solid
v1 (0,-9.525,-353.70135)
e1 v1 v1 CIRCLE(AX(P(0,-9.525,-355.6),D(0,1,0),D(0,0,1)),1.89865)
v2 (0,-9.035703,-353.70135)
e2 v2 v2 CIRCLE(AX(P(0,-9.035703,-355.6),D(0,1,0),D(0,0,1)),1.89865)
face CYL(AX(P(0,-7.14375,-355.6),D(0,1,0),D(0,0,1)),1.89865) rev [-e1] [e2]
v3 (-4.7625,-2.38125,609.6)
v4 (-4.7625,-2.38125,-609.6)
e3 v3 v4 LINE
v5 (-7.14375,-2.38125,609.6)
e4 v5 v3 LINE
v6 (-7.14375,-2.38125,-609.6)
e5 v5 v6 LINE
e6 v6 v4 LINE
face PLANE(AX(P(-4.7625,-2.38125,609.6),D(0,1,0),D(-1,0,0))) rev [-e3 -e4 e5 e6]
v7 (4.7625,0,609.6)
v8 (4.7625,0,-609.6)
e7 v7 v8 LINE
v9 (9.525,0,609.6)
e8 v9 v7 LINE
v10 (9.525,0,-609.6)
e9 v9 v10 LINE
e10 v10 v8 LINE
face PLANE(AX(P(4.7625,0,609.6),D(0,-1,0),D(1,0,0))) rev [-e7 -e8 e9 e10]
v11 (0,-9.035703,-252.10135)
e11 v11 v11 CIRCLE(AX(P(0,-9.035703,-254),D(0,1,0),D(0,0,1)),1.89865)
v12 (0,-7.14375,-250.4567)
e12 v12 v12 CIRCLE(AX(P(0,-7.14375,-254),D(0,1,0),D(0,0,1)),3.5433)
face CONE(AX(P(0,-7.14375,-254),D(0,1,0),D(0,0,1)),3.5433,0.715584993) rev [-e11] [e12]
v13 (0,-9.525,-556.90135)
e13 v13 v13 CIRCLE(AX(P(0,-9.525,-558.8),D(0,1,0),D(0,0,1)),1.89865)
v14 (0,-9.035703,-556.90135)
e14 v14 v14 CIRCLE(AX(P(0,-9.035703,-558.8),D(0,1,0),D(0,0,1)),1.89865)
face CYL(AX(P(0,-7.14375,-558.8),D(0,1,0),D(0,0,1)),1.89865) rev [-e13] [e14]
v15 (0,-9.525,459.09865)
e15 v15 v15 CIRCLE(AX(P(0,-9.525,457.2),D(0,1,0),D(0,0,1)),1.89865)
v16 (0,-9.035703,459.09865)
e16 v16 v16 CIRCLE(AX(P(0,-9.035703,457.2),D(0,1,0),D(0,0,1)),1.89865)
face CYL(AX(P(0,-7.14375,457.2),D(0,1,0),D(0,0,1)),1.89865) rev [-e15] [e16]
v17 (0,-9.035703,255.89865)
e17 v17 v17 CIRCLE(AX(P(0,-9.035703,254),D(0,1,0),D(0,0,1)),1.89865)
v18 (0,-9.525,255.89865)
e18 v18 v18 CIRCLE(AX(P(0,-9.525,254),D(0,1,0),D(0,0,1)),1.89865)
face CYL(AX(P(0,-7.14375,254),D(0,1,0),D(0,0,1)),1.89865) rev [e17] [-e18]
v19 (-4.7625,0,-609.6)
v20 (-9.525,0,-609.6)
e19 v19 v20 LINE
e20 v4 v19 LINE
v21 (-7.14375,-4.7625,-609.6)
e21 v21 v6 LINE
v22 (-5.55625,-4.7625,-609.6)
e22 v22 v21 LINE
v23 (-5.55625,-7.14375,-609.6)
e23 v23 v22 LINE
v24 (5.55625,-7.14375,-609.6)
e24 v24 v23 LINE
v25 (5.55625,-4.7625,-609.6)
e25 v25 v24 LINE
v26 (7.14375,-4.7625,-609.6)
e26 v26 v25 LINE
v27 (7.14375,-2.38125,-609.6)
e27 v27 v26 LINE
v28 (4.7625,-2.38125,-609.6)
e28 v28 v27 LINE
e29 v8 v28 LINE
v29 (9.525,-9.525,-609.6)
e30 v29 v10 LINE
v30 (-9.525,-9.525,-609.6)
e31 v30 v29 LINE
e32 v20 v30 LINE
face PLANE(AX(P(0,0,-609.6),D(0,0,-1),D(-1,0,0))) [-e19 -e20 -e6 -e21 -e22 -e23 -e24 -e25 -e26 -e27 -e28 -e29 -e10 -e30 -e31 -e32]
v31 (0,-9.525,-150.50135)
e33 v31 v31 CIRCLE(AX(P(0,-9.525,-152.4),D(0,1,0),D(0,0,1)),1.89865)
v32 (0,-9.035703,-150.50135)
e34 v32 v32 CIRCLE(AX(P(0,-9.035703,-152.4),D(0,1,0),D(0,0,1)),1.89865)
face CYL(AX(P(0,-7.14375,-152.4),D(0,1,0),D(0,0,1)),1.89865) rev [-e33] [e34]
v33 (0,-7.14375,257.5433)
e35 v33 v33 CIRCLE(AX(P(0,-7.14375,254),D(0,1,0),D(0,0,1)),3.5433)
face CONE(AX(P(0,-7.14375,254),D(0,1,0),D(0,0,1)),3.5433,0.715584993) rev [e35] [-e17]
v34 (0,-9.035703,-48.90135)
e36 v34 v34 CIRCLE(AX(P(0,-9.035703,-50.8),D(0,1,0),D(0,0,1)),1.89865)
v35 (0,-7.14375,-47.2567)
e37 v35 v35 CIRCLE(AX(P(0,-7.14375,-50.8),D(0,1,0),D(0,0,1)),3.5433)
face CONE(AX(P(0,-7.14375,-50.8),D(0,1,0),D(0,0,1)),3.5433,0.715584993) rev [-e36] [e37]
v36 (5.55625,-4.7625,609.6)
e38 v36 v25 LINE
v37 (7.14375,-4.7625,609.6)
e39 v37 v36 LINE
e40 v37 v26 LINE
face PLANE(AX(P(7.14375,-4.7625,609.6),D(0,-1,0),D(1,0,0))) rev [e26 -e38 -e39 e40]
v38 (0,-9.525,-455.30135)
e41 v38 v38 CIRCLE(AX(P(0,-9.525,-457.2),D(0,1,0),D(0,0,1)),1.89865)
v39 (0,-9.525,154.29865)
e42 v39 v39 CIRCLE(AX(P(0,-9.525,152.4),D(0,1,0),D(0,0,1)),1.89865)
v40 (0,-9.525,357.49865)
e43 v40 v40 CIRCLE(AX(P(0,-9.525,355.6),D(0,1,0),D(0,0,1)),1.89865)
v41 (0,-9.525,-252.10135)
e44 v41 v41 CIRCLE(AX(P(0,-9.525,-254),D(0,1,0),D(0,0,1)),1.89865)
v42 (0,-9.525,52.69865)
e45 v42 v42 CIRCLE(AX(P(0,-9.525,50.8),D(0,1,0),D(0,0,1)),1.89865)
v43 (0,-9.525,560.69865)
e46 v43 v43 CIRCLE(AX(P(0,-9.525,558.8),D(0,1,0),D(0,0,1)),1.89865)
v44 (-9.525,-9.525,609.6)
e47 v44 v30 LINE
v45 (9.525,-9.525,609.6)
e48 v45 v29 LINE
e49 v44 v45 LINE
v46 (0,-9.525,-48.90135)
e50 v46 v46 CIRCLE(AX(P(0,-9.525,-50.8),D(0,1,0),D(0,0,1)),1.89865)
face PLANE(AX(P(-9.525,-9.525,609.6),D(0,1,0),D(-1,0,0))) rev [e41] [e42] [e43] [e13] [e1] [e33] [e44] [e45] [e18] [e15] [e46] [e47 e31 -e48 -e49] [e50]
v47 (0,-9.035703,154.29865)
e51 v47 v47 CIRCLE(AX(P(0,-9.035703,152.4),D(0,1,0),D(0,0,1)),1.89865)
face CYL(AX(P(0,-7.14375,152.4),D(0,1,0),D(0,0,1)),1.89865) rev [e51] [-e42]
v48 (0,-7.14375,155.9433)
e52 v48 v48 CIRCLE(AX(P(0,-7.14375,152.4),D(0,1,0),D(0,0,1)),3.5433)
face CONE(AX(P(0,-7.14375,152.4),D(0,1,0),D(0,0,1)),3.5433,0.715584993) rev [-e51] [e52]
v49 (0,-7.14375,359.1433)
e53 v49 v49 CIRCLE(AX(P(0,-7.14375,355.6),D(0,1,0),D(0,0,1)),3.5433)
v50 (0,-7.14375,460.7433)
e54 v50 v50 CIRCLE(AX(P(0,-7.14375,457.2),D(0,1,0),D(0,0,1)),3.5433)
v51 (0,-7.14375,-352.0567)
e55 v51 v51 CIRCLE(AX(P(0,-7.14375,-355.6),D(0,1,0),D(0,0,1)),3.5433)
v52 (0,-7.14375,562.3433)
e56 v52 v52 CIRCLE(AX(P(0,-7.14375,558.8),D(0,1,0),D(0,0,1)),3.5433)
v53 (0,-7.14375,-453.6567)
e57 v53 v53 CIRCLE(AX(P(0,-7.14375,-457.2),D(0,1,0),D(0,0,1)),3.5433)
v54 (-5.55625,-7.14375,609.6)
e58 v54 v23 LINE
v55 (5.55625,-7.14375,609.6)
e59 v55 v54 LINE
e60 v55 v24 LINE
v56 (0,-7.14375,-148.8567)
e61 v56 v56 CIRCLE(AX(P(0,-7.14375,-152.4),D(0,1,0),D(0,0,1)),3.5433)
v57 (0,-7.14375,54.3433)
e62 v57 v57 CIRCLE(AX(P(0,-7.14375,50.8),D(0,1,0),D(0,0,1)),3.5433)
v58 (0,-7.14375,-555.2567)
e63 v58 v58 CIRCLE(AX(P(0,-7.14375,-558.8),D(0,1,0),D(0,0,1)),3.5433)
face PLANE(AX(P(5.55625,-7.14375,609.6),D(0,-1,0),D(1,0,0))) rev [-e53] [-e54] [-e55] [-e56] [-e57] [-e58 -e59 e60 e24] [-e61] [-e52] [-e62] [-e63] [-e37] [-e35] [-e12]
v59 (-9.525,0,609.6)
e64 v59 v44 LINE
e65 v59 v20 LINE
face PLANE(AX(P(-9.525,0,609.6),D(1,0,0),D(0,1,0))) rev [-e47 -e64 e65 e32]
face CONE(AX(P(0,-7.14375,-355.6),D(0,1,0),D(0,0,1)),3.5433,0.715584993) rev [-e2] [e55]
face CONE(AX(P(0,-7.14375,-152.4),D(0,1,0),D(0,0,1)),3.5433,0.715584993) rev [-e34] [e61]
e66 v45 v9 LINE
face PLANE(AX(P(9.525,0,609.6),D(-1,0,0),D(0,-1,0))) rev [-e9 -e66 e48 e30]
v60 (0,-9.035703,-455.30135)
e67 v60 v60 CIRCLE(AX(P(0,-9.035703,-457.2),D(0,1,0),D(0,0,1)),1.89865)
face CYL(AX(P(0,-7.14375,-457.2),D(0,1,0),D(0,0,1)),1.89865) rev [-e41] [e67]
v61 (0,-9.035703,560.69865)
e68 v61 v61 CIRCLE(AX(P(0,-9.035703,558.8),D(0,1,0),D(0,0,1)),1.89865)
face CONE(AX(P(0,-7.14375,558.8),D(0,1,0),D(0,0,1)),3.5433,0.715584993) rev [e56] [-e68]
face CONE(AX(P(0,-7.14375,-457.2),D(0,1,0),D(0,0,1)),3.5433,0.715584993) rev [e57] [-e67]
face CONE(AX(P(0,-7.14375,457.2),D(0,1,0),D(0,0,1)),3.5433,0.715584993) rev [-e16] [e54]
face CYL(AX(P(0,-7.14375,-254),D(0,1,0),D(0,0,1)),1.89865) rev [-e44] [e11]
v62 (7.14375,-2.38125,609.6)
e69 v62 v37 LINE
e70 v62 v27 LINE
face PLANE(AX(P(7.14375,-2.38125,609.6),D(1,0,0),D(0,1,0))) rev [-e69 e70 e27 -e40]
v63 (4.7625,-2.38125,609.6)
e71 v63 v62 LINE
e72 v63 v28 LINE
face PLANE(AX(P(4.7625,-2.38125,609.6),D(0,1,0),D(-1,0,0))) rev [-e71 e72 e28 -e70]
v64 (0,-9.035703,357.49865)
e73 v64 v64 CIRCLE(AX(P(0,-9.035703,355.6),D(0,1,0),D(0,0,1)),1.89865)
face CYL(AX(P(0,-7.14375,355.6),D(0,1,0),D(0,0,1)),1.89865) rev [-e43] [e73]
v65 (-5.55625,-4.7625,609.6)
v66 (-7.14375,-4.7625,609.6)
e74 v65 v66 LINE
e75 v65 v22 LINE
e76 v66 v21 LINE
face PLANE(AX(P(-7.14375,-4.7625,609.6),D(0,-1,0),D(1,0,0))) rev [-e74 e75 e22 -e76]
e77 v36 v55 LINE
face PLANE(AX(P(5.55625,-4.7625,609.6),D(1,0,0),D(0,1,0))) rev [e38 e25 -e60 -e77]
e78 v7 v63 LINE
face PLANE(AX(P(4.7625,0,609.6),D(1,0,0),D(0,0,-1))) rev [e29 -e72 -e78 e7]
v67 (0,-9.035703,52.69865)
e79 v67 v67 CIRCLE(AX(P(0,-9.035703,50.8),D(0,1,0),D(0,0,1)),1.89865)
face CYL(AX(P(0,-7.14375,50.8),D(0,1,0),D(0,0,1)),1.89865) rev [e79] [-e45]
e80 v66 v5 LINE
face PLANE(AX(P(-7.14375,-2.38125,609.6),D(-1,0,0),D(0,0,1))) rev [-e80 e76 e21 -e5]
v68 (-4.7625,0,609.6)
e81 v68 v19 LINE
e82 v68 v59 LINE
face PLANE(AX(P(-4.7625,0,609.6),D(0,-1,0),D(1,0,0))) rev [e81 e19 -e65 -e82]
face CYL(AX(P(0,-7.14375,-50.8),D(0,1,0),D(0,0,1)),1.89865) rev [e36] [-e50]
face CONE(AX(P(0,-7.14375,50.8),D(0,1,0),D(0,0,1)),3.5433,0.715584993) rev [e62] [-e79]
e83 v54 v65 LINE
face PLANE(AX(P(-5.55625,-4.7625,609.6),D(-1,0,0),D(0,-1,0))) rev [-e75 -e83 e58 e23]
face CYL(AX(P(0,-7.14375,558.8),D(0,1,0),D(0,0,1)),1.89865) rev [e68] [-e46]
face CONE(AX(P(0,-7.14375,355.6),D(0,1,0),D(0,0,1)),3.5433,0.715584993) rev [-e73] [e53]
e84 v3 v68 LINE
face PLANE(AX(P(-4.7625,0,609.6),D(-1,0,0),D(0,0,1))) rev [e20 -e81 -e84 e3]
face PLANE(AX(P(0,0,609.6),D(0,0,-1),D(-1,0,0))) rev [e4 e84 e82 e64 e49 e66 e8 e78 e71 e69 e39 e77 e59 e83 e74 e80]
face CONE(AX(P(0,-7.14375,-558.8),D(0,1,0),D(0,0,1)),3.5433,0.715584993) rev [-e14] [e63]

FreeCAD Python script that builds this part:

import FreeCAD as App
import Part
import Sketcher

V = App.Vector
Q = App.Units.Quantity


def add_polygon(sketch, points):
    """Adds a closed chain of lines whose ends are joined by coincident constraints."""
    first, n = sketch.GeometryCount, len(points)
    for a, b in zip(points, points[1:] + points[:1]):
        sketch.addGeometry(Part.LineSegment(App.Vector(*a, 0), App.Vector(*b, 0)), False)
    for i in range(n):
        sketch.addConstraint(Sketcher.Constraint("Coincident", first + i, 2, first + (i + 1) % n, 1))

doc = App.newDocument("Part")
body = doc.addObject("PartDesign::Body", "Body")

sketch1 = body.newObject("Sketcher::SketchObject", "Sketch")
sketch1.AttachmentSupport = (doc.getObject("XY_Plane"), [""])
sketch1.MapMode = "FlatFace"
add_polygon(sketch1, [(-4.8, 0), (-9.5, 0), (-9.5, -9.5), (9.5, -9.5), (9.5, 0), (4.8, 0), (4.8, -2.4), (7.1, -2.4), (7.1, -4.8), (5.6, -4.8), (5.6, -7.1), (-5.6, -7.1), (-5.6, -4.8), (-7.1, -4.8), (-7.1, -2.4), (-4.8, -2.4)])
sketch1.addConstraint(Sketcher.Constraint("Horizontal", 0))
sketch1.addConstraint(Sketcher.Constraint("Vertical", 1))
sketch1.addConstraint(Sketcher.Constraint("Horizontal", 2))
sketch1.addConstraint(Sketcher.Constraint("Vertical", 3))
sketch1.addConstraint(Sketcher.Constraint("Horizontal", 4))
sketch1.addConstraint(Sketcher.Constraint("Vertical", 5))
sketch1.addConstraint(Sketcher.Constraint("Horizontal", 6))
sketch1.addConstraint(Sketcher.Constraint("Vertical", 7))
sketch1.addConstraint(Sketcher.Constraint("Horizontal", 8))
sketch1.addConstraint(Sketcher.Constraint("Vertical", 9))
sketch1.addConstraint(Sketcher.Constraint("Horizontal", 10))
sketch1.addConstraint(Sketcher.Constraint("Vertical", 11))
sketch1.addConstraint(Sketcher.Constraint("Horizontal", 12))
sketch1.addConstraint(Sketcher.Constraint("Vertical", 13))
sketch1.addConstraint(Sketcher.Constraint("Horizontal", 14))
sketch1.addConstraint(Sketcher.Constraint("Vertical", 15))
sketch1.addConstraint(Sketcher.Constraint("Symmetric", 0, 2, 3, 2, -1, 1))
sketch1.addConstraint(Sketcher.Constraint("Symmetric", 8, 2, 11, 2, -2))
sketch1.addConstraint(Sketcher.Constraint("Symmetric", 6, 2, 13, 2, -2))
sketch1.addConstraint(Sketcher.Constraint("Symmetric", 4, 2, 15, 2, -2))
sketch1.addConstraint(Sketcher.Constraint("Equal", 14, 5))
sketch1.addConstraint(Sketcher.Constraint("Equal", 5, 7))
sketch1.addConstraint(Sketcher.Constraint("Equal", 7, 9))
sketch1.addConstraint(Sketcher.Constraint("DistanceX", 2, 1, 2, 2, Q("0.75 in")))
sketch1.addConstraint(Sketcher.Constraint("DistanceX", 0, 2, 0, 1, Q("0.1875 in")))
sketch1.addConstraint(Sketcher.Constraint("DistanceX", 6, 1, 6, 2, Q("0.09375 in")))
sketch1.addConstraint(Sketcher.Constraint("DistanceX", 8, 2, 8, 1, Q("0.0625 in")))
sketch1.addConstraint(Sketcher.Constraint("DistanceY", 1, 2, 1, 1, Q("0.375 in")))
pad1 = body.newObject("PartDesign::Pad", "Pad")
pad1.Profile = sketch1
pad1.Length = Q("48 in")
pad1.Midplane = True

sketch2 = body.newObject("Sketcher::SketchObject", "Sketch001")
sketch2.AttachmentSupport = (doc.getObject("YZ_Plane"), [""])
sketch2.MapMode = "FlatFace"
add_polygon(sketch2, [(-9.53, -558.8), (-7.14, -558.8), (-7.14, -555.26), (-9.04, -556.9), (-9.53, -556.9)])
sketch2.addGeometry(Part.LineSegment(V(-7.14, -558.8, 0), V(-9.53, -558.8, 0)), True)
sketch2.addConstraint(Sketcher.Constraint("Horizontal", 0))
sketch2.addConstraint(Sketcher.Constraint("Vertical", 1))
sketch2.addConstraint(Sketcher.Constraint("Horizontal", 3))
sketch2.addConstraint(Sketcher.Constraint("Vertical", 4))
sketch2.addConstraint(Sketcher.Constraint("Horizontal", 5))
sketch2.addConstraint(Sketcher.Constraint("Coincident", 5, 1, 0, 2))
sketch2.addConstraint(Sketcher.Constraint("Vertical", 3, 2, 5, 2))
sketch2.addConstraint(Sketcher.Constraint("DistanceY", 0, 2, -1, 1, Q("22 in")))
sketch2.addConstraint(Sketcher.Constraint("Angle", 2, Q("-139 deg")))
sketch2.addConstraint(Sketcher.Constraint("DistanceX", 0, 1, 0, 2, Q("0.09375 in")))
sketch2.addConstraint(Sketcher.Constraint("DistanceY", 1, 1, 1, 2, Q("0.1395 in")))
sketch2.addConstraint(Sketcher.Constraint("DistanceX", 0, 2, -1, 1, Q("0.28125 in")))
sketch2.addConstraint(Sketcher.Constraint("DistanceY", 4, 2, 4, 1, Q("1.89865 mm")))
groove = body.newObject("PartDesign::Groove", "Groove")
groove.Profile = sketch2
groove.ReferenceAxis = (sketch2, ["Axis0"])
groove.Angle = 360
doc.recompute()

linearpattern = body.newObject("PartDesign::LinearPattern", "LinearPattern")
linearpattern.Originals = [groove]
linearpattern.Direction = (doc.getObject("Z_Axis"), [""])
linearpattern.Mode = "offset"
linearpattern.Offset = Q("4 in")
linearpattern.Occurrences = 12
body.Tip = linearpattern

doc.recompute()
